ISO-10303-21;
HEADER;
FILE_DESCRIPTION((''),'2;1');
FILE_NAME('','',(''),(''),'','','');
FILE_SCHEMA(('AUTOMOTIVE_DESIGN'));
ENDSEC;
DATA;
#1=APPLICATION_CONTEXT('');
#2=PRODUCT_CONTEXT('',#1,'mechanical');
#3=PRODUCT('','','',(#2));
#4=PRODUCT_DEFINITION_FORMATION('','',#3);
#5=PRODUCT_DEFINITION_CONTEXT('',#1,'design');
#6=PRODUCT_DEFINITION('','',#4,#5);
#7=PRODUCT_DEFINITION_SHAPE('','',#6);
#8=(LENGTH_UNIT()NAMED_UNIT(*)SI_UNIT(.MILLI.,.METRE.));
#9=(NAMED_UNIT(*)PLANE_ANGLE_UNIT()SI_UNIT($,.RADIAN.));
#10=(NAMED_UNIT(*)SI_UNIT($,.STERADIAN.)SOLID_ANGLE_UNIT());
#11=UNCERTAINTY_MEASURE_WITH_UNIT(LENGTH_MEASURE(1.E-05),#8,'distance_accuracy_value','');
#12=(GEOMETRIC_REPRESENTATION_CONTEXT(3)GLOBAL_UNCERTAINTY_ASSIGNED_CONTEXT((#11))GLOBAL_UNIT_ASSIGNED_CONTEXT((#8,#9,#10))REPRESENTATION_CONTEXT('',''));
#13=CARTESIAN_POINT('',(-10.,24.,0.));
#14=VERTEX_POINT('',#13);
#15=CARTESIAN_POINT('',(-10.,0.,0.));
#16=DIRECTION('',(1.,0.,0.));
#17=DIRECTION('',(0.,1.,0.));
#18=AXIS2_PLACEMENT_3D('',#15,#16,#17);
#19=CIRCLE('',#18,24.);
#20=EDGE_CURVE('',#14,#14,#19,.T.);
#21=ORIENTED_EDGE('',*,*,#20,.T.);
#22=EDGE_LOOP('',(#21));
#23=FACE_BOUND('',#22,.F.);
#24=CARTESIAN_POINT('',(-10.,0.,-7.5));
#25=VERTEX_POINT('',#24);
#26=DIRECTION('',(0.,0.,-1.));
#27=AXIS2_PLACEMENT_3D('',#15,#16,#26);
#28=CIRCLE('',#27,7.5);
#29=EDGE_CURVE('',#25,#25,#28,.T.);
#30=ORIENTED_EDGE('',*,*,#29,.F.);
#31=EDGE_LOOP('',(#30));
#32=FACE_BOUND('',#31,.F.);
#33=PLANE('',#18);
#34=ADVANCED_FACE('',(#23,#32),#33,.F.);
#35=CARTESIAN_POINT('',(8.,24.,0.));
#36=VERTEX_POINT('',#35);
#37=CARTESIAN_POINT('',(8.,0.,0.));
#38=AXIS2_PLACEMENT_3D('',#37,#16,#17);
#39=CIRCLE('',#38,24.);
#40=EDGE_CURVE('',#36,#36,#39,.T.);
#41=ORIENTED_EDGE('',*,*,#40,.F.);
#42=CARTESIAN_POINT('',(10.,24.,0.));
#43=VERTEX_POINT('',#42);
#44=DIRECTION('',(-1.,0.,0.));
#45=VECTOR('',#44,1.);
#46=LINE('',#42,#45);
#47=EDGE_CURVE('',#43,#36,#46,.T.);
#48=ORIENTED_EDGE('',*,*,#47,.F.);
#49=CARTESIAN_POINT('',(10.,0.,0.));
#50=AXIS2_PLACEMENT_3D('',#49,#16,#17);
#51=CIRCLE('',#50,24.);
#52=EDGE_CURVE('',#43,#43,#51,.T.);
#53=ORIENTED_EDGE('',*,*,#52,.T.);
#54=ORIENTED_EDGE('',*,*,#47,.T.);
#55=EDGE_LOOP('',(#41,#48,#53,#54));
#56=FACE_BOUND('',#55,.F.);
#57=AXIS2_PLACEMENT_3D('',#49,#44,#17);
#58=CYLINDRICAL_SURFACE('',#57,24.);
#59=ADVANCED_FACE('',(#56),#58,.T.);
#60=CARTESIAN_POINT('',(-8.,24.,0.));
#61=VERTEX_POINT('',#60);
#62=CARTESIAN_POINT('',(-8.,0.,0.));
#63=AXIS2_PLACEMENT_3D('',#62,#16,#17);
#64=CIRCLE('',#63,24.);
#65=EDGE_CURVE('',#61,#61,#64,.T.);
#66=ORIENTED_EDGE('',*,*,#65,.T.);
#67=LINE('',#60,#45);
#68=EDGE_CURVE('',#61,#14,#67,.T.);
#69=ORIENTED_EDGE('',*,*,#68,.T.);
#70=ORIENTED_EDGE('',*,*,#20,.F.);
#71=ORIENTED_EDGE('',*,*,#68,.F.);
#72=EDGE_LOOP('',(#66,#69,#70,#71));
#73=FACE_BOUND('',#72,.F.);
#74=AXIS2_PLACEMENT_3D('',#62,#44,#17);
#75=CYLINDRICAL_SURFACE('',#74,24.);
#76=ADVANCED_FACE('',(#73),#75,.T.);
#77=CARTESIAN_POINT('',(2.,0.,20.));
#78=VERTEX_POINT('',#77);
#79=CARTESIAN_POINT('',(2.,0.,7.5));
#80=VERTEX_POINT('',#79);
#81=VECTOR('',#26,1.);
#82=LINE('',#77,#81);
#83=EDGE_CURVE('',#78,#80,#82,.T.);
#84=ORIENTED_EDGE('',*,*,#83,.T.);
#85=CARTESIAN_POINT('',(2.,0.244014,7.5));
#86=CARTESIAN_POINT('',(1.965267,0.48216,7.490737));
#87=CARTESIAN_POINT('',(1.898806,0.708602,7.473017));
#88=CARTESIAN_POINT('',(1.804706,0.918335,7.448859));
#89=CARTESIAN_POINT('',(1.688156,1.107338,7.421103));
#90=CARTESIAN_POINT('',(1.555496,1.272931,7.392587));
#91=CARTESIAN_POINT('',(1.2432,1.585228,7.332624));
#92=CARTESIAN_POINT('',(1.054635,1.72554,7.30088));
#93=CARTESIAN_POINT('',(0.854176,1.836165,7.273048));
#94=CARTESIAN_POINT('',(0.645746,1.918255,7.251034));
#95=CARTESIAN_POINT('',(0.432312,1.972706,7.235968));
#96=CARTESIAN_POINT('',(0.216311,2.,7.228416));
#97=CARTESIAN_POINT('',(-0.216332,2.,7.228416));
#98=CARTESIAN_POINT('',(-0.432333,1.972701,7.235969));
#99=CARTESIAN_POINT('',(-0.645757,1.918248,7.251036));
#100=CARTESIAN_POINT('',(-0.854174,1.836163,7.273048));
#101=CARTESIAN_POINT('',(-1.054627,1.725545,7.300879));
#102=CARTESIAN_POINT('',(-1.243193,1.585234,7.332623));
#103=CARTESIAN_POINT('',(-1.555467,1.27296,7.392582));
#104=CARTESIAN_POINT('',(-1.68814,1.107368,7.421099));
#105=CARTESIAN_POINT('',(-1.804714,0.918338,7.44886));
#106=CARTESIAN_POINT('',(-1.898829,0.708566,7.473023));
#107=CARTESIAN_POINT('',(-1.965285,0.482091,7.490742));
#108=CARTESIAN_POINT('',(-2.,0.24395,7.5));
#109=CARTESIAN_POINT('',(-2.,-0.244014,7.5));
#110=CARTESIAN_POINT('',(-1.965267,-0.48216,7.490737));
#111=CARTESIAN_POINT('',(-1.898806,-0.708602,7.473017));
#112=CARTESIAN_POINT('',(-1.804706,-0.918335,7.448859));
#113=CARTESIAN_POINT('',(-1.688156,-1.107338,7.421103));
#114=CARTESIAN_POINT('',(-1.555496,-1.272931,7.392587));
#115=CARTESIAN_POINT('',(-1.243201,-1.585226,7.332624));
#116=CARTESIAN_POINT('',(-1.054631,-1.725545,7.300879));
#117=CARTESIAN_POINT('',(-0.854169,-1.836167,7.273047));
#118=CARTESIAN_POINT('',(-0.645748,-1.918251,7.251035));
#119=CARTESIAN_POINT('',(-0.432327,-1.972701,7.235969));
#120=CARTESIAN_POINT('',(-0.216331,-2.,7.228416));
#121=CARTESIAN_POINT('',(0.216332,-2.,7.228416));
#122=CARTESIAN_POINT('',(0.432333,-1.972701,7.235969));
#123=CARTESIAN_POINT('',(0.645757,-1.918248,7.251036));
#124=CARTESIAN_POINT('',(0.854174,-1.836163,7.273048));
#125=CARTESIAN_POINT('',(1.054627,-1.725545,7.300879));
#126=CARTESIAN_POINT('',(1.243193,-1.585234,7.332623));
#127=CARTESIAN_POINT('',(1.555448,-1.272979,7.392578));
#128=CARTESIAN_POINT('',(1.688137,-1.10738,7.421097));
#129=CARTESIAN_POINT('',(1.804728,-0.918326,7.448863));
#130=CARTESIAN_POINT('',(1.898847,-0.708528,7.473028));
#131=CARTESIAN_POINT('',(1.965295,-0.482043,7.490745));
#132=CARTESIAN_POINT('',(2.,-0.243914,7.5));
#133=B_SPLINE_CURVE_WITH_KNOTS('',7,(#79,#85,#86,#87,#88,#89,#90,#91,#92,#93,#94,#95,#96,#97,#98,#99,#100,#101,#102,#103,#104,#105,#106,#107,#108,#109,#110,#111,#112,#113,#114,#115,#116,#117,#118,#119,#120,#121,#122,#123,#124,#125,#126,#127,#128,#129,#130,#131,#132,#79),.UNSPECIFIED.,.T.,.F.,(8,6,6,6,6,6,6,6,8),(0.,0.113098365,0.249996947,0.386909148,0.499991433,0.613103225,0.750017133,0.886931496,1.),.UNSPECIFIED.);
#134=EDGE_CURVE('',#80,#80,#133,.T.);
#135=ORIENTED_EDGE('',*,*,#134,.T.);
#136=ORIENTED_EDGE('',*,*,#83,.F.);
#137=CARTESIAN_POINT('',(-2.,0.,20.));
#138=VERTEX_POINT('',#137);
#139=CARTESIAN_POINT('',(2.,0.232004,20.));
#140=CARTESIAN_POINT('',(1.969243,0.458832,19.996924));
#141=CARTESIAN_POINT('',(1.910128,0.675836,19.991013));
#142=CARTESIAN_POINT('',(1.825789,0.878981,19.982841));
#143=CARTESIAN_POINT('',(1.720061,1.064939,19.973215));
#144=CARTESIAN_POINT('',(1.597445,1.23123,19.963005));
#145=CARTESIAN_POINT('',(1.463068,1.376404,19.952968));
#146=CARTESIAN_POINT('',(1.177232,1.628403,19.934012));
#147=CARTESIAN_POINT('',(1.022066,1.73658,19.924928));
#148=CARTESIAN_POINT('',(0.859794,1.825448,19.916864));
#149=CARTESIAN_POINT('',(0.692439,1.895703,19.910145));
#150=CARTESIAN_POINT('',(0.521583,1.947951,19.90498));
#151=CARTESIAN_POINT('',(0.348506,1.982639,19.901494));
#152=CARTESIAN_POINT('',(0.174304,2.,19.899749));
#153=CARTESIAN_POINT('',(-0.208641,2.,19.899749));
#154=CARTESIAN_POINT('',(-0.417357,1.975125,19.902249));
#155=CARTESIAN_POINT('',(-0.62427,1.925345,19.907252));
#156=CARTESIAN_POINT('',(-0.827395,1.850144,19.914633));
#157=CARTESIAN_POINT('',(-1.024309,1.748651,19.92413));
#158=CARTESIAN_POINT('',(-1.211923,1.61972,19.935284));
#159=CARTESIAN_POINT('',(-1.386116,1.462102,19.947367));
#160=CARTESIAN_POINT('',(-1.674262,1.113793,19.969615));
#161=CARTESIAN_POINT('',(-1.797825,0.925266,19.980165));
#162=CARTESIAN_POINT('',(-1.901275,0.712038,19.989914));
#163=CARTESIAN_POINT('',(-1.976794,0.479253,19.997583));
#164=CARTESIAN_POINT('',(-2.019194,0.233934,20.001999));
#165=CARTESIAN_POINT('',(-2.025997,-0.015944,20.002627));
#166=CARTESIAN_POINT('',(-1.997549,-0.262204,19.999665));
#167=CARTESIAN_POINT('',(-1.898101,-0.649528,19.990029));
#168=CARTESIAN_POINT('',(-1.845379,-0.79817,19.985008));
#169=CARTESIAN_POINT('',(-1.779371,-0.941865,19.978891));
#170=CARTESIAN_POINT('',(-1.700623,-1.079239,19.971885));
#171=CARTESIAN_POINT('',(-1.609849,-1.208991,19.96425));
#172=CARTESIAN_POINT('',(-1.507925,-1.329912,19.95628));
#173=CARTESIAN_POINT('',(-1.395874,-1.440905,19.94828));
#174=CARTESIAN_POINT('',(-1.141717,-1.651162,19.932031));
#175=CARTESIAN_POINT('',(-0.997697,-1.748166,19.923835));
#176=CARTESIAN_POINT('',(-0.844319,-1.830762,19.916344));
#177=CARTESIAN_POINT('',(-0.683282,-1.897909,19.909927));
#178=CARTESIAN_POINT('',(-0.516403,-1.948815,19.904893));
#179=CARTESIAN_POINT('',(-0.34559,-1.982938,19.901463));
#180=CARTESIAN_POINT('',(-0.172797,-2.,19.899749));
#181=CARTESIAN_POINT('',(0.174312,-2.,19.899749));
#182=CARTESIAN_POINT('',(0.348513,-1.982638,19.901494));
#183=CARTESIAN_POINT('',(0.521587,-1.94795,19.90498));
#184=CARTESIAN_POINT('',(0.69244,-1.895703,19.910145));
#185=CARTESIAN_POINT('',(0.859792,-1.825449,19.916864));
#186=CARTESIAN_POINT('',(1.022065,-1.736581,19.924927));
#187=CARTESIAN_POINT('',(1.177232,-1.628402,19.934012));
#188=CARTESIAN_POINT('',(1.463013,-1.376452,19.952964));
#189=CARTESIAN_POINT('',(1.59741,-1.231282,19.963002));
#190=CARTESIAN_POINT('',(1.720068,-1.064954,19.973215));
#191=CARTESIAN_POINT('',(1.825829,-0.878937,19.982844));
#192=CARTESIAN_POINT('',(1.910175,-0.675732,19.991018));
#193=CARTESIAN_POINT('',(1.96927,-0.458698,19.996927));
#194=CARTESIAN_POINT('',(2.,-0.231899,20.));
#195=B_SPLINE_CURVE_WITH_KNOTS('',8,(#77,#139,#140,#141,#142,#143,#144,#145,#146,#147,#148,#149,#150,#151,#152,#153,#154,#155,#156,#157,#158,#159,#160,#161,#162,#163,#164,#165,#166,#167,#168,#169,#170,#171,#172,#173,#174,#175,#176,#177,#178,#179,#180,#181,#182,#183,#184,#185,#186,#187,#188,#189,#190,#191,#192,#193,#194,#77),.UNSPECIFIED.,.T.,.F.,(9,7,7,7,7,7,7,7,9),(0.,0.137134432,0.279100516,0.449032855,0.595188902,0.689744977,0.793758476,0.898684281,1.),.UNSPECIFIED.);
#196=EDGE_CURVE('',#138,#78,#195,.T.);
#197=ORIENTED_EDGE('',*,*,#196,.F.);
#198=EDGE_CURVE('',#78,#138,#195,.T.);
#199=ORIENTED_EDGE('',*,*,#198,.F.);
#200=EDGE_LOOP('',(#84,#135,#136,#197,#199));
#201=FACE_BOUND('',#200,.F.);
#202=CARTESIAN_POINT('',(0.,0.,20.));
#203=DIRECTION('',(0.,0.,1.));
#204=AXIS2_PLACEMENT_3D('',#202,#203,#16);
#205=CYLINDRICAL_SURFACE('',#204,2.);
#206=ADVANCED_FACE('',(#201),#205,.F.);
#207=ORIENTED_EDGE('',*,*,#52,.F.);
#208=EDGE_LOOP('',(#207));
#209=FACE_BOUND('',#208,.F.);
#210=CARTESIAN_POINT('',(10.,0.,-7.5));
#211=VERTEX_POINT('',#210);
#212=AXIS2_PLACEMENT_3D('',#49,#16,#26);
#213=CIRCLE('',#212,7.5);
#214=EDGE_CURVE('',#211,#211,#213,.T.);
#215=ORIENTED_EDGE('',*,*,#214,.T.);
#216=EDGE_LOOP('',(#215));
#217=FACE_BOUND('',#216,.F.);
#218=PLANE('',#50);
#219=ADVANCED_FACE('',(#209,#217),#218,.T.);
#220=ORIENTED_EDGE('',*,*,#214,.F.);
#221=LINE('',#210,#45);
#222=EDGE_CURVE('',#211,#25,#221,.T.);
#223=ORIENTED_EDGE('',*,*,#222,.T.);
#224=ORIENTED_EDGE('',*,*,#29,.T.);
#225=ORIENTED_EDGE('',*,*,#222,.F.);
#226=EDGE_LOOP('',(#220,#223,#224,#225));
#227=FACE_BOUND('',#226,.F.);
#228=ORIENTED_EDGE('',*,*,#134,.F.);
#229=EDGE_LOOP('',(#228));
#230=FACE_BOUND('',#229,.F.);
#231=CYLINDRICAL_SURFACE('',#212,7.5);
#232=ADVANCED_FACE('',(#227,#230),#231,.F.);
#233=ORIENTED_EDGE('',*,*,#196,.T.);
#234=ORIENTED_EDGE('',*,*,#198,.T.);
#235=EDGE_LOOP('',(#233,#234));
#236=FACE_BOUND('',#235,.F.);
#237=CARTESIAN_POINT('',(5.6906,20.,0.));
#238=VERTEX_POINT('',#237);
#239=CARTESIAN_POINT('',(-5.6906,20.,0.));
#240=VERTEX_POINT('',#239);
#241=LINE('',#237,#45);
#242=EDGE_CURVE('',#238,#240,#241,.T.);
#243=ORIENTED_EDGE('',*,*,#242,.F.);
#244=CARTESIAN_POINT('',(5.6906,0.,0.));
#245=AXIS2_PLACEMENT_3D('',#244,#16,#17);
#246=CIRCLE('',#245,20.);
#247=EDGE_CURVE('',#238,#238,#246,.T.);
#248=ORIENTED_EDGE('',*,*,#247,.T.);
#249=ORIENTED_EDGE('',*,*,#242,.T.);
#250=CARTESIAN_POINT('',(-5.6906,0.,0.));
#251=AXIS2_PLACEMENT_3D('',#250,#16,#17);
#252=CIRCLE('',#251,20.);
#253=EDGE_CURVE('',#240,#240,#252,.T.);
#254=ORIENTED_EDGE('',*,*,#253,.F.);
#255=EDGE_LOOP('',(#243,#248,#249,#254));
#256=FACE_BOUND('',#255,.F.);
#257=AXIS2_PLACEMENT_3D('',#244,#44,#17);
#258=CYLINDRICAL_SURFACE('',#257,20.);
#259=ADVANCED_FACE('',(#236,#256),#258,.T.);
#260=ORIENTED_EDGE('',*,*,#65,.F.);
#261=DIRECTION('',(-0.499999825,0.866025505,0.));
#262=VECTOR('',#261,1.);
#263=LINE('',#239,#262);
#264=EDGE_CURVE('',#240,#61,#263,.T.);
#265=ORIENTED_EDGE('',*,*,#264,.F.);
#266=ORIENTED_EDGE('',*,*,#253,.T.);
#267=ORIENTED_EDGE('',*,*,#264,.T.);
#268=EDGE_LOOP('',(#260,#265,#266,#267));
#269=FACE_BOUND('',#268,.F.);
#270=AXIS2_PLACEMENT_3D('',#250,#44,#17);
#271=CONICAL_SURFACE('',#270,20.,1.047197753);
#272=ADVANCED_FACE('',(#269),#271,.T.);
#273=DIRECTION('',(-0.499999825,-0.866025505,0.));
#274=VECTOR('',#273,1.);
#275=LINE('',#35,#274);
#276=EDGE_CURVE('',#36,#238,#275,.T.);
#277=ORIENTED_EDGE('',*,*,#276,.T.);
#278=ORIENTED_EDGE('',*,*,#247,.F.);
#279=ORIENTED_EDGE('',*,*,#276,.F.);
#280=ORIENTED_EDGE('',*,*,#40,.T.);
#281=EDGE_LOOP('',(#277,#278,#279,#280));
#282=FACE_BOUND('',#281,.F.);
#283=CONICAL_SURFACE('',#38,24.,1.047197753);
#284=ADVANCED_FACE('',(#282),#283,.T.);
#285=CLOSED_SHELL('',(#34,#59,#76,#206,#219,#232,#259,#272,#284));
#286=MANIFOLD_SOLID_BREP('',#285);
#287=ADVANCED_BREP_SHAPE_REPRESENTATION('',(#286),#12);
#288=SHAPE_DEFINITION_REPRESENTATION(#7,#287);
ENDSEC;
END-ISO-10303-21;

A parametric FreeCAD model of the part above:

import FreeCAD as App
import Part
import Sketcher
from FreeCAD import Vector
Q = App.Units.Quantity

doc = App.newDocument("Part")
body = doc.addObject("PartDesign::Body", "Body")

# Sketch on XY plane
sketch1 = body.newObject("Sketcher::SketchObject", "Sketch")
sketch1.AttachmentSupport = (doc.getObject("XY_Plane"), [""])
sketch1.MapMode = "FlatFace"
sketch1.addGeometry([
    Part.LineSegment(Vector(-10, 24, 0), Vector(-10, 0, 0)),  # 0
    Part.LineSegment(Vector(-10, 0, 0), Vector(10, 0, 0)),  # 1
    Part.LineSegment(Vector(10, 0, 0), Vector(10, 24, 0)),  # 2
    Part.LineSegment(Vector(10, 24, 0), Vector(8, 24, 0)),  # 3
    Part.LineSegment(Vector(8, 24, 0), Vector(5.7, 20, 0)),  # 4
    Part.LineSegment(Vector(5.7, 20, 0), Vector(-5.7, 20, 0)),  # 5
    Part.LineSegment(Vector(-5.7, 20, 0), Vector(-8, 24, 0)),  # 6
    Part.LineSegment(Vector(-8, 24, 0), Vector(-10, 24, 0)),  # 7
], False)
sketch1.addConstraint([
    Sketcher.Constraint("Coincident", 0, 2, 1, 1),
    Sketcher.Constraint("Coincident", 1, 2, 2, 1),
    Sketcher.Constraint("Coincident", 2, 2, 3, 1),
    Sketcher.Constraint("Coincident", 3, 2, 4, 1),
    Sketcher.Constraint("Coincident", 4, 2, 5, 1),
    Sketcher.Constraint("Coincident", 5, 2, 6, 1),
    Sketcher.Constraint("Coincident", 6, 2, 7, 1),
    Sketcher.Constraint("Coincident", 7, 2, 0, 1),
    Sketcher.Constraint("Vertical", 0),
    Sketcher.Constraint("Horizontal", 1),
    Sketcher.Constraint("Vertical", 2),
    Sketcher.Constraint("Horizontal", 3),
    Sketcher.Constraint("Horizontal", 5),
    Sketcher.Constraint("Horizontal", 7),
    Sketcher.Constraint("Symmetric", 0, 2, 1, 2, -1, 1),
    Sketcher.Constraint("Symmetric", 3, 2, 6, 2, -2),
    Sketcher.Constraint("Equal", 4, 6),
    Sketcher.Constraint("DistanceX", 1, 1, 1, 2, 20.0),
    Sketcher.Constraint("DistanceX", 3, 2, 3, 1, 2.0),
    Sketcher.Constraint("DistanceY", 0, 2, 0, 1, 24.0),
    Sketcher.Constraint("Angle", 4, Q("-120 deg")),
    Sketcher.Constraint("DistanceY", -1, 1, 4, 2, 20.0),
])
revolution = body.newObject("PartDesign::Revolution", "Revolution")
revolution.Profile = sketch1
revolution.ReferenceAxis = (sketch1, ["H_Axis"])
revolution.Angle = 360

# Sketch on YZ plane
sketch2 = body.newObject("Sketcher::SketchObject", "Sketch001")
sketch2.AttachmentSupport = (doc.getObject("YZ_Plane"), [""])
sketch2.MapMode = "FlatFace"
sketch2.AttachmentOffset = App.Placement(Vector(0, 0, 10), App.Rotation())
sketch2.addGeometry(Part.Circle(Vector(0, 0, 0), Vector(0, 0, 1), 8), False)
sketch2.addConstraint([
    Sketcher.Constraint("Coincident", 0, 3, -1, 1),
    Sketcher.Constraint("Diameter", 0, 15.0),
])
pocket1 = body.newObject("PartDesign::Pocket", "Pocket")
pocket1.Profile = sketch2
pocket1.Type = "ThroughAll"

# Sketch on XY plane
sketch3 = body.newObject("Sketcher::SketchObject", "Sketch002")
sketch3.AttachmentSupport = (doc.getObject("XY_Plane"), [""])
sketch3.MapMode = "FlatFace"
sketch3.AttachmentOffset = App.Placement(Vector(0, 0, 20), App.Rotation())
sketch3.addGeometry(Part.Circle(Vector(0, 0, 0), Vector(0, 0, 1), 2), False)
sketch3.addConstraint([
    Sketcher.Constraint("Coincident", 0, 3, -1, 1),
    Sketcher.Constraint("Diameter", 0, 4.0),
])
pocket2 = body.newObject("PartDesign::Pocket", "Pocket001")
pocket2.Profile = sketch3
pocket2.Type = "UpToFirst"

doc.recompute()
